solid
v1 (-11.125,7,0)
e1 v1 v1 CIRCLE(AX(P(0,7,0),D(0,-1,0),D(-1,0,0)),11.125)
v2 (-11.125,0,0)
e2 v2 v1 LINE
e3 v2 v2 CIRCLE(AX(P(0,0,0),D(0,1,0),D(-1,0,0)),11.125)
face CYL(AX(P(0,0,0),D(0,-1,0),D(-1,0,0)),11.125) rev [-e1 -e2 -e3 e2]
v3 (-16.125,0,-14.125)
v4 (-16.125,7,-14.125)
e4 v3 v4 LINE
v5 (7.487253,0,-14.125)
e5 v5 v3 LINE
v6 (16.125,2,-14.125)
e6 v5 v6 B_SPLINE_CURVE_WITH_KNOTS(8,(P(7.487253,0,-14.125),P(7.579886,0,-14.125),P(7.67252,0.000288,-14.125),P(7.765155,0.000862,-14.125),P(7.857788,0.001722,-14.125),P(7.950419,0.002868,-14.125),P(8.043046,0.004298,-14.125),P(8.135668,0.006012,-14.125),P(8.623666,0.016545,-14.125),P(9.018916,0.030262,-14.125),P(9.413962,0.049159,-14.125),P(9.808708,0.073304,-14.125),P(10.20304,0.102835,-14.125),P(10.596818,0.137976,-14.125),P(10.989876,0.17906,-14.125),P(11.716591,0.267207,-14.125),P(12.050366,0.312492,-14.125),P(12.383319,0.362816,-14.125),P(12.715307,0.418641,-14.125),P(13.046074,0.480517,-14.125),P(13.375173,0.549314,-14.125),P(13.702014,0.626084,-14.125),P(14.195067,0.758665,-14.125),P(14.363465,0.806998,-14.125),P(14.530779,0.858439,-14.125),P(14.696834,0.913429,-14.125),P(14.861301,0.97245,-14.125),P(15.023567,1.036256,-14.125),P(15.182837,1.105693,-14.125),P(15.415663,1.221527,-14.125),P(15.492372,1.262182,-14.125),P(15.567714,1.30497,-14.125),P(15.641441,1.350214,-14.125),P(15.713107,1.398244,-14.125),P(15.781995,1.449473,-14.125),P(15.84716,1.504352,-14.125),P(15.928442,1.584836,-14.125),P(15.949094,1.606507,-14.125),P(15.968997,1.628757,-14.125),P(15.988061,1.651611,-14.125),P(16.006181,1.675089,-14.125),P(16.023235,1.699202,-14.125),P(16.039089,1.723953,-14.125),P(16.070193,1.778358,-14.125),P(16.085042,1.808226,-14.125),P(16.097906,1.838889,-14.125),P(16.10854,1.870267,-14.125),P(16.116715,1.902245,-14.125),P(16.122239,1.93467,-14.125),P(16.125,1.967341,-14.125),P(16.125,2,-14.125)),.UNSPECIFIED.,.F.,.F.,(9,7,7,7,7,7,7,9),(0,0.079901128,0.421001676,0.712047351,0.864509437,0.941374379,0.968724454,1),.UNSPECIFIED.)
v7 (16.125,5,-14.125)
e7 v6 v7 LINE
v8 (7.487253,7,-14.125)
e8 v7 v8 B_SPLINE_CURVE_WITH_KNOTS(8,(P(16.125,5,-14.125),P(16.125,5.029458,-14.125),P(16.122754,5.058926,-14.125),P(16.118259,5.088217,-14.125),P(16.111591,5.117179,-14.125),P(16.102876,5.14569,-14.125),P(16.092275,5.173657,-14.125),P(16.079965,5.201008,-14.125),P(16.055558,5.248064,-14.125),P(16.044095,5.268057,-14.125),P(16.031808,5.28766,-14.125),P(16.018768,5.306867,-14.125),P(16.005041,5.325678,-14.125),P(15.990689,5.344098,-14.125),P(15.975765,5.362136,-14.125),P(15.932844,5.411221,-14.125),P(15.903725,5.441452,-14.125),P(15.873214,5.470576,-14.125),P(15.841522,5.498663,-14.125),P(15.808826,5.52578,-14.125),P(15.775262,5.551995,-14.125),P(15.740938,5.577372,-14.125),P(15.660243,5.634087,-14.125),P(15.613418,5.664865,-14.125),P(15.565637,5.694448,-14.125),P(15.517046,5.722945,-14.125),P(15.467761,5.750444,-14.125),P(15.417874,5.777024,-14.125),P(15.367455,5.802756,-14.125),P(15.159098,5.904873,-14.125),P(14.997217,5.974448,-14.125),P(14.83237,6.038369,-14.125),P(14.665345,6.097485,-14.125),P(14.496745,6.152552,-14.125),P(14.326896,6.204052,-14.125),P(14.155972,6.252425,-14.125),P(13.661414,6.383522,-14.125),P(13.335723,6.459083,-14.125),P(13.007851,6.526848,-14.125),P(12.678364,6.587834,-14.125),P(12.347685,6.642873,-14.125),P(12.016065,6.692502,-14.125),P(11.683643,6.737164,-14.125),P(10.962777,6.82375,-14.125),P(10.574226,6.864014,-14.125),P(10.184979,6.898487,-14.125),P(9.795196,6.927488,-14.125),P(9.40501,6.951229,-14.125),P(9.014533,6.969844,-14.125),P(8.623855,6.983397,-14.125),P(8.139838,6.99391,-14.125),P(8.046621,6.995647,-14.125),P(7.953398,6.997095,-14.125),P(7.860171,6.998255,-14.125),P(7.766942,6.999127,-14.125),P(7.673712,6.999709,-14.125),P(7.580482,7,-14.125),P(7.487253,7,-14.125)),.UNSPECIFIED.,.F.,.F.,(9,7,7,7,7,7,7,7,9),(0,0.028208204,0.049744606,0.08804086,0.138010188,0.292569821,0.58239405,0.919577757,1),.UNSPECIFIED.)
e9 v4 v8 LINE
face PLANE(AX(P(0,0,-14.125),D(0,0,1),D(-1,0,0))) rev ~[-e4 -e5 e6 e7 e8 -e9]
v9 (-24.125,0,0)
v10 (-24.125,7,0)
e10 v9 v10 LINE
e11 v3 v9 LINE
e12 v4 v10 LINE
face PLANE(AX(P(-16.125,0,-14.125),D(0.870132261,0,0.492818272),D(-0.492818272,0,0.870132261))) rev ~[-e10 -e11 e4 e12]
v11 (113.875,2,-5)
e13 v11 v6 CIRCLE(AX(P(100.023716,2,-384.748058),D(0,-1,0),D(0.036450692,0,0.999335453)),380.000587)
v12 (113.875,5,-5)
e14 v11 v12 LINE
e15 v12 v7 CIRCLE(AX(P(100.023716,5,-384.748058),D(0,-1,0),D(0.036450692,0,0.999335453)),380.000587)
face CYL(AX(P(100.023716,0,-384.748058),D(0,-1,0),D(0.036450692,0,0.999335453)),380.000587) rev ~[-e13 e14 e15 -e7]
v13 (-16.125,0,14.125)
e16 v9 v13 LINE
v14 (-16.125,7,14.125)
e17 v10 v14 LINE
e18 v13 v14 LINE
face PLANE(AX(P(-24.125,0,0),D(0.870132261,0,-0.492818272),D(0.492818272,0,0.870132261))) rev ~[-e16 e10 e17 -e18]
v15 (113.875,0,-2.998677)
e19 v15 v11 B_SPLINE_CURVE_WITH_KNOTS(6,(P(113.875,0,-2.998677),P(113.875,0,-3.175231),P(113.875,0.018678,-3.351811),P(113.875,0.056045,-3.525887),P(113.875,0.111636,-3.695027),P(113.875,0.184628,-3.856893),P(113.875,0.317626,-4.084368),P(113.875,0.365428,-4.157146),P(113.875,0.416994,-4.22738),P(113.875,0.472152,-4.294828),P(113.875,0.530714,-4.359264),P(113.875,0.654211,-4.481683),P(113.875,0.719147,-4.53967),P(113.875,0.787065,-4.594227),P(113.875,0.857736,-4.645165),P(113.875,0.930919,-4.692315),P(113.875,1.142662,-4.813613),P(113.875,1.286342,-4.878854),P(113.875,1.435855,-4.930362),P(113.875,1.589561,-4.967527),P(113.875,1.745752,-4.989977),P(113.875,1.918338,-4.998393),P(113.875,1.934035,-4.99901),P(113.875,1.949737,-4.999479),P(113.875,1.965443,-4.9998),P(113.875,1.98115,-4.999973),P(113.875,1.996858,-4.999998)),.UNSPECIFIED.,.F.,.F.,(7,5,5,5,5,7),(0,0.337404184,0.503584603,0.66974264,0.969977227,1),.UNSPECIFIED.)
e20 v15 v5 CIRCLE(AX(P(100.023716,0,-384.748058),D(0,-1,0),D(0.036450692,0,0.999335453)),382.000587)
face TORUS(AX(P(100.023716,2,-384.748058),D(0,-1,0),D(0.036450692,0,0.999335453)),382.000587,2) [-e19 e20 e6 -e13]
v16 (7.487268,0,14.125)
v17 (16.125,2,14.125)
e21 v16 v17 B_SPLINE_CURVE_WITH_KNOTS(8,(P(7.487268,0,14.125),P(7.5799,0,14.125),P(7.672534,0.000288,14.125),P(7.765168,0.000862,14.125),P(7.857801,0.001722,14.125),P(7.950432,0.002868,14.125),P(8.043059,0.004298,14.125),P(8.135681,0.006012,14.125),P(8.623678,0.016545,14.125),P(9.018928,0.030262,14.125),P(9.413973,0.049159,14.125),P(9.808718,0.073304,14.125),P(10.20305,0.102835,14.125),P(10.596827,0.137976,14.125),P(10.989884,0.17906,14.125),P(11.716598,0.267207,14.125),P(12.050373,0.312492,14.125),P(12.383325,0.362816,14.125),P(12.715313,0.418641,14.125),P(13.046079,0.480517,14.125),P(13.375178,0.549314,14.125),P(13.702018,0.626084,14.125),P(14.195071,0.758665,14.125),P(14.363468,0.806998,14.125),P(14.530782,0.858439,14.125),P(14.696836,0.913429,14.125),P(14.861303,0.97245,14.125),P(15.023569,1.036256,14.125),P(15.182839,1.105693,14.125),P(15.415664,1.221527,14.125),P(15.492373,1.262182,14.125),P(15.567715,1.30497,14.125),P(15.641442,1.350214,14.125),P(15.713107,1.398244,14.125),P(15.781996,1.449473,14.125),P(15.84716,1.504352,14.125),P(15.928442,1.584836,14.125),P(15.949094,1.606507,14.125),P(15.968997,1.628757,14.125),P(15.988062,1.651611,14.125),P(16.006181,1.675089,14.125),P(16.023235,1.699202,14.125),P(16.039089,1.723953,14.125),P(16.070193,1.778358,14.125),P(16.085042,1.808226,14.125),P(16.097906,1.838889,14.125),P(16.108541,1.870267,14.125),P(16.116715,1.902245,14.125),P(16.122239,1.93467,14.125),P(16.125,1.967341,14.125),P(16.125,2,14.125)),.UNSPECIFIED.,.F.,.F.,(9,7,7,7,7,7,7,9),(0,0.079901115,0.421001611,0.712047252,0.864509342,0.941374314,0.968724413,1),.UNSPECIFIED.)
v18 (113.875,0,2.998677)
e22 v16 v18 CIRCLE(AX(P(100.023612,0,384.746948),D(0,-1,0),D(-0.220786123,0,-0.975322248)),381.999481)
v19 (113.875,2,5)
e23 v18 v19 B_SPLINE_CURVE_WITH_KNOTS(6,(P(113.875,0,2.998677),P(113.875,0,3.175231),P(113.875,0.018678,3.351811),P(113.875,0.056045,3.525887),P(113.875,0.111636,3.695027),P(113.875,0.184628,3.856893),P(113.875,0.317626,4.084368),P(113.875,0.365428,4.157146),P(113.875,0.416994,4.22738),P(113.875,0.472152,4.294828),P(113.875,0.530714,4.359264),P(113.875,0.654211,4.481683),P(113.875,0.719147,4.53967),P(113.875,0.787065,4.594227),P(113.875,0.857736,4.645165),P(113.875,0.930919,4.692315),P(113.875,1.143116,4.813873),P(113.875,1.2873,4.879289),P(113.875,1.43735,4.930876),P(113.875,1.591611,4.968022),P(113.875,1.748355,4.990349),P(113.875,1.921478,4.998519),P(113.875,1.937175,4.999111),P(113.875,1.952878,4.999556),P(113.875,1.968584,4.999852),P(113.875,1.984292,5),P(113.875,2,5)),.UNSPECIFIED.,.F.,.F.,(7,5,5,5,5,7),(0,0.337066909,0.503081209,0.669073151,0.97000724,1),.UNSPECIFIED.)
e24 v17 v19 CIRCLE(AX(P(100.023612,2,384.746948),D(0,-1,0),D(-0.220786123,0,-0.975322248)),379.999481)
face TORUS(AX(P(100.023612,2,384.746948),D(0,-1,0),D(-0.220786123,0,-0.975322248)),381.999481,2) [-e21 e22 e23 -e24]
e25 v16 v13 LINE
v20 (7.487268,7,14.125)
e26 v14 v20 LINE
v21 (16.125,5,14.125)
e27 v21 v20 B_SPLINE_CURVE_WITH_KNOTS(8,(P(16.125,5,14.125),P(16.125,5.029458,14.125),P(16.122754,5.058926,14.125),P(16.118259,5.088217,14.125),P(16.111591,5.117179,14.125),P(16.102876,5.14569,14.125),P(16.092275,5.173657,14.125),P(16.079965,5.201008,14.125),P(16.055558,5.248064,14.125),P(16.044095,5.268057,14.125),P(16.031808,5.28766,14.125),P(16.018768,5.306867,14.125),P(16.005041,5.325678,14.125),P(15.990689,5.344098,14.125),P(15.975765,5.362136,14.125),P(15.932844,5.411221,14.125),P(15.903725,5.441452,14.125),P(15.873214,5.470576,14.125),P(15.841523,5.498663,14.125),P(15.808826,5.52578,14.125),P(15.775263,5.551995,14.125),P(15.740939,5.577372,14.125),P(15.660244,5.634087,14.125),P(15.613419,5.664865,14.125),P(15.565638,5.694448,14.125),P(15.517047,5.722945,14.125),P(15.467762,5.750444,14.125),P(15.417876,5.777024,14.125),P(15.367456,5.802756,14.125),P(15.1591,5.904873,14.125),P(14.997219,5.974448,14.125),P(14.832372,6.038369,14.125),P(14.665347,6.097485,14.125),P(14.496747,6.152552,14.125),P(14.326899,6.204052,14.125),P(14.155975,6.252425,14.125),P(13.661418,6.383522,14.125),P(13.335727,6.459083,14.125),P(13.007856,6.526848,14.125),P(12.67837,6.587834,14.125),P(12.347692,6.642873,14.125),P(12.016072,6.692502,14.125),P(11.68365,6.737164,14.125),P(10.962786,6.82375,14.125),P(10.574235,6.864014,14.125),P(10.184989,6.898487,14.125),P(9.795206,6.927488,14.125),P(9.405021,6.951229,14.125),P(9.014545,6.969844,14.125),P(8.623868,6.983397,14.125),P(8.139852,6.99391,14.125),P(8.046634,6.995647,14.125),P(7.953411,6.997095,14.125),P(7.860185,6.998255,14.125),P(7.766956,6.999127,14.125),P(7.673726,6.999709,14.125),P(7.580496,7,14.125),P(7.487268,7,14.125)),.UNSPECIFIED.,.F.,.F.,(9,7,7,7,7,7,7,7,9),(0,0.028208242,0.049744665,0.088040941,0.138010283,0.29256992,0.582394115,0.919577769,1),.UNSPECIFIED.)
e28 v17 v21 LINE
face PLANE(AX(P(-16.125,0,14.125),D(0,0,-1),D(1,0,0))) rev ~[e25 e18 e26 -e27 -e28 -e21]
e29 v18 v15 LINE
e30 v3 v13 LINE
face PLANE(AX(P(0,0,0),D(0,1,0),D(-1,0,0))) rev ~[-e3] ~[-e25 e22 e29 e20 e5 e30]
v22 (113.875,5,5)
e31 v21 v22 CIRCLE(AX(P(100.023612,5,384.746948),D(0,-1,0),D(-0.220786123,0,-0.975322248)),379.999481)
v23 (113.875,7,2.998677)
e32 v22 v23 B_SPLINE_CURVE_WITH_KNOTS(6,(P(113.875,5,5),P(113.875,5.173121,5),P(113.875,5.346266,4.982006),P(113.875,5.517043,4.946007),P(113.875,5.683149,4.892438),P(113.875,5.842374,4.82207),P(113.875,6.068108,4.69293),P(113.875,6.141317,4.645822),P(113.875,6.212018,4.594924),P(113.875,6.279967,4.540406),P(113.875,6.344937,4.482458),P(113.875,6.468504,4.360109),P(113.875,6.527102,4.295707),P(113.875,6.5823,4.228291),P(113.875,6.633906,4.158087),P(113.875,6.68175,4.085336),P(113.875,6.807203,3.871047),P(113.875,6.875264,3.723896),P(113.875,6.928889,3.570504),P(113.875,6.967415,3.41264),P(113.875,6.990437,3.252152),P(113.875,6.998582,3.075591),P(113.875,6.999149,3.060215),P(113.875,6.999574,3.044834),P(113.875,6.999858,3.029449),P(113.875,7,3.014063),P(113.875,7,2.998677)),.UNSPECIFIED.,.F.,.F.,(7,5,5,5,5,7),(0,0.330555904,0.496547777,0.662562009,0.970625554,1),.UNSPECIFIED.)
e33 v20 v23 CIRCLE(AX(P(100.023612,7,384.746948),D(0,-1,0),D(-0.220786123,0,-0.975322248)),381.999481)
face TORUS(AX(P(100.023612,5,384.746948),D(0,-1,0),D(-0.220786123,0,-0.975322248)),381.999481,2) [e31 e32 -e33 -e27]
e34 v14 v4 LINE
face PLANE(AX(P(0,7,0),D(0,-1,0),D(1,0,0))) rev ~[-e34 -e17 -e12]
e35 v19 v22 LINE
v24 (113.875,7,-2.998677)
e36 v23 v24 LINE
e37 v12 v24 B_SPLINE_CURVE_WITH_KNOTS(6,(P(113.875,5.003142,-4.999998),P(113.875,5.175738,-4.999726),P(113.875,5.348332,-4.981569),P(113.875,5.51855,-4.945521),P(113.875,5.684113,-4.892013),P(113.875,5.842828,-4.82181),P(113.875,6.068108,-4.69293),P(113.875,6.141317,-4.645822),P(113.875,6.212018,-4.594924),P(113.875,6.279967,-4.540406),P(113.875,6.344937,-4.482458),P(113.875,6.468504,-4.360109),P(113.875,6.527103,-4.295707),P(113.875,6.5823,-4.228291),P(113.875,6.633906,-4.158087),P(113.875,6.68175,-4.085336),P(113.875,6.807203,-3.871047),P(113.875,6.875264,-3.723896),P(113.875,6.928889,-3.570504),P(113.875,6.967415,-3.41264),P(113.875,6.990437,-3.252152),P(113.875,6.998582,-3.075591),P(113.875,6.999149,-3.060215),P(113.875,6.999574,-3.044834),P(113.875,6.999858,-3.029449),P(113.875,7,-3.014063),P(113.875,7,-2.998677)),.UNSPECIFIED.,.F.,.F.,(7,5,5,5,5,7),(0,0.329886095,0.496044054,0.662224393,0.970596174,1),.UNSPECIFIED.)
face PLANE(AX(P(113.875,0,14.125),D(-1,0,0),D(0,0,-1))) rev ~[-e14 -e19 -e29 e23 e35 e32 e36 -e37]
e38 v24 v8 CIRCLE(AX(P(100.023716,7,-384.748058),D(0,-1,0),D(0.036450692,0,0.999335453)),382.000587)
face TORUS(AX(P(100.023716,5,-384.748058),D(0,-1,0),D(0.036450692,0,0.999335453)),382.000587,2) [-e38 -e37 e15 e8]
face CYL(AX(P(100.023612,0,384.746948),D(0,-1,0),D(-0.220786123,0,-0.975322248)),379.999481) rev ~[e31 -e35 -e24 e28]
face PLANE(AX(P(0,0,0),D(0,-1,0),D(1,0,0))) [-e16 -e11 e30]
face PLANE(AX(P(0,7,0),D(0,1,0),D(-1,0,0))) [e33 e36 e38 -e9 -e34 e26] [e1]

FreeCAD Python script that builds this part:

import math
import FreeCAD as App
import Part
import Sketcher


def edges_at(feature, points):
    """Names of the edges that pass closest to the given points."""
    edges = feature.Shape.Edges
    near = lambda p: min(range(len(edges)), key=lambda i: edges[i].distToShape(Part.Vertex(*p))[0])
    return sorted({f"Edge{near(p) + 1}" for p in points})

doc = App.newDocument("Part")
body = doc.addObject("PartDesign::Body", "Body")

sketch1 = body.newObject("Sketcher::SketchObject", "Sketch")
sketch1.AttachmentSupport = (doc.getObject("XZ_Plane"), [""])
sketch1.MapMode = "FlatFace"
sketch1.addGeometry([
    Part.LineSegment(App.Vector(-16, -14, 0), App.Vector(-16, 14, 0)),
    Part.LineSegment(App.Vector(-16, 14, 0), App.Vector(114, 14, 0)),
    Part.LineSegment(App.Vector(114, 14, 0), App.Vector(114, -14, 0)),
    Part.LineSegment(App.Vector(114, -14, 0), App.Vector(-16, -14, 0)),
    Part.Circle(App.Vector(0, 0, 0), App.Vector(0, 0, 1), 11),
], False)
sketch1.addConstraint([
    Sketcher.Constraint("Coincident", 0, 2, 1, 1),
    Sketcher.Constraint("Coincident", 1, 2, 2, 1),
    Sketcher.Constraint("Coincident", 2, 2, 3, 1),
    Sketcher.Constraint("Coincident", 3, 2, 0, 1),
    Sketcher.Constraint("Vertical", 0),
    Sketcher.Constraint("Horizontal", 1),
    Sketcher.Constraint("Vertical", 2),
    Sketcher.Constraint("Horizontal", 3),
    Sketcher.Constraint("Coincident", 4, 3, -1, 1),
    Sketcher.Constraint("Diameter", 4, 22.25),
    Sketcher.Constraint("DistanceX", 1, 1, 1, 2, 130.0),
    Sketcher.Constraint("DistanceY", 0, 1, 0, 2, 28.25),
    Sketcher.Constraint("DistanceX", 0, 2, -1, 1, 16.125),
    Sketcher.Constraint("DistanceY", -1, 1, 0, 2, 14.125),
])
pad1 = body.newObject("PartDesign::Pad", "Pad")
pad1.Profile = sketch1
pad1.Length = 7
pad1.Reversed = True

sketch2 = body.newObject("Sketcher::SketchObject", "Sketch001")
sketch2.AttachmentSupport = (doc.getObject("XZ_Plane"), [""])
sketch2.MapMode = "FlatFace"
sketch2.addGeometry([
    Part.LineSegment(App.Vector(114, 5, 0), App.Vector(114, 14, 0)),
    Part.LineSegment(App.Vector(114, 14, 0), App.Vector(16, 14, 0)),
    Part.ArcOfCircle(Part.Circle(App.Vector(100, 385, 0), App.Vector(0, 0, 1), 380), math.radians(-102.76), math.radians(-87.91)),
    Part.LineSegment(App.Vector(114, -14, 0), App.Vector(114, -5, 0)),
    Part.ArcOfCircle(Part.Circle(App.Vector(100, -385, 0), App.Vector(0, 0, 1), 380), math.radians(87.91), math.radians(102.76)),
    Part.LineSegment(App.Vector(16, -14, 0), App.Vector(114, -14, 0)),
], False)
sketch2.addConstraint([
    Sketcher.Constraint("Coincident", 0, 2, 1, 1),
    Sketcher.Constraint("Coincident", 1, 2, 2, 1),
    Sketcher.Constraint("Coincident", 2, 2, 0, 1),
    Sketcher.Constraint("Coincident", 3, 2, 4, 1),
    Sketcher.Constraint("Coincident", 4, 2, 5, 1),
    Sketcher.Constraint("Coincident", 5, 2, 3, 1),
    Sketcher.Constraint("Vertical", 0),
    Sketcher.Constraint("Horizontal", 1),
    Sketcher.Constraint("Vertical", 3),
    Sketcher.Constraint("Horizontal", 5),
    Sketcher.Constraint("Equal", 2, 4),
    Sketcher.Constraint("Symmetric", 2, 3, 4, 3, -1),
    Sketcher.Constraint("Symmetric", 0, 2, 5, 2, -1),
    Sketcher.Constraint("Radius", 2, 380.0),
    Sketcher.Constraint("DistanceY", -1, 1, 2, 2, 5.0),
    Sketcher.Constraint("DistanceX", 1, 2, 1, 1, 97.75),
    Sketcher.Constraint("DistanceY", 0, 1, 0, 2, 9.125),
    Sketcher.Constraint("DistanceX", -1, 1, 0, 2, 113.875),
])
pocket1 = body.newObject("PartDesign::Pocket", "Pocket")
pocket1.Profile = sketch2
pocket1.Type = "ThroughAll"
doc.recompute()

fillet = body.newObject("PartDesign::Fillet", "Fillet")
fillet.Base = (pocket1, edges_at(pocket1, [(64.704, 0, 6.392)]))
fillet.Radius = 2
doc.recompute()

fillet2 = body.newObject("PartDesign::Fillet", "Fillet001")
fillet2.Base = (fillet, edges_at(fillet, [(64.704, 7, 6.392)]))
fillet2.Radius = 2
doc.recompute()

fillet3 = body.newObject("PartDesign::Fillet", "Fillet002")
fillet3.Base = (fillet2, edges_at(fillet2, [(64.704, 0, -6.392)]))
fillet3.Radius = 2
doc.recompute()

fillet4 = body.newObject("PartDesign::Fillet", "Fillet003")
fillet4.Base = (fillet3, edges_at(fillet3, [(64.704, 7, -6.392)]))
fillet4.Radius = 2

sketch3 = body.newObject("Sketcher::SketchObject", "Sketch002")
sketch3.AttachmentSupport = (doc.getObject("XZ_Plane"), [""])
sketch3.MapMode = "FlatFace"
sketch3.addGeometry([
    Part.LineSegment(App.Vector(-24, 0, 0), App.Vector(-16, -14, 0)),
    Part.LineSegment(App.Vector(-16, -14, 0), App.Vector(-16, 14, 0)),
    Part.LineSegment(App.Vector(-16, 14, 0), App.Vector(-24, 0, 0)),
], False)
sketch3.addConstraint([
    Sketcher.Constraint("Coincident", 0, 2, 1, 1),
    Sketcher.Constraint("Coincident", 1, 2, 2, 1),
    Sketcher.Constraint("Coincident", 2, 2, 0, 1),
    Sketcher.Constraint("Vertical", 1),
    Sketcher.Constraint("PointOnObject", 2, 2, -1),
    Sketcher.Constraint("Equal", 0, 2),
    Sketcher.Constraint("DistanceX", 2, 2, 0, 2, 8.0),
    Sketcher.Constraint("DistanceY", 1, 1, 1, 2, 28.25),
    Sketcher.Constraint("DistanceX", 0, 2, -1, 1, 16.125),
])
pad2 = body.newObject("PartDesign::Pad", "Pad001")
pad2.Profile = sketch3
pad2.Length = 7
pad2.Reversed = True

doc.recompute()
